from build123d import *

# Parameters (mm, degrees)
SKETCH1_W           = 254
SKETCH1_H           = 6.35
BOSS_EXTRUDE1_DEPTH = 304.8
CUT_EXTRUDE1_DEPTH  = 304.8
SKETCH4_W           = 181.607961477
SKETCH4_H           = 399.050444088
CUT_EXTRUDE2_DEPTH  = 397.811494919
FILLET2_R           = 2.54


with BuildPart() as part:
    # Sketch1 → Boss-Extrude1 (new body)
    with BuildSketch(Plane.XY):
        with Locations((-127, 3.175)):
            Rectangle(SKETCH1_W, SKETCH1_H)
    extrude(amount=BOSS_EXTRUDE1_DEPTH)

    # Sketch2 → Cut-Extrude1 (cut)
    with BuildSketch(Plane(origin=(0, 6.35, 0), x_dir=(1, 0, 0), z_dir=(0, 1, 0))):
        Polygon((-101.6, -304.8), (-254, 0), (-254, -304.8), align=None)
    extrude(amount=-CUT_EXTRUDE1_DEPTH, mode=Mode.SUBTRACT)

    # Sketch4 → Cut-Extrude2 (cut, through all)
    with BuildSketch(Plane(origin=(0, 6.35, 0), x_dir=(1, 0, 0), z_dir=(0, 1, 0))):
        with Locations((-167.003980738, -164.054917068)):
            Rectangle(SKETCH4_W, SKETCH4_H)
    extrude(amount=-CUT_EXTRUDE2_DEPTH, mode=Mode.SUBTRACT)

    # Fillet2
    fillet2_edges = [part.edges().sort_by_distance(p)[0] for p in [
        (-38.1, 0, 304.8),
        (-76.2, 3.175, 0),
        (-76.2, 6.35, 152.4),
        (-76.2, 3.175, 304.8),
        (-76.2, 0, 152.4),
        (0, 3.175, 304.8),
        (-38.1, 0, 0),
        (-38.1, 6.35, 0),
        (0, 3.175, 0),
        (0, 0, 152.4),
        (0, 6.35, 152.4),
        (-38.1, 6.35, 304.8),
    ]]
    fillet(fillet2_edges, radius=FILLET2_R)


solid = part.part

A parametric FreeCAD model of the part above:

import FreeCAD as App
import Part
import Sketcher
from FreeCAD import Vector
Q = App.Units.Quantity


def add_polygon(sketch, points):
    """Adds a closed chain of lines whose ends are joined by coincident constraints."""
    first, n = sketch.GeometryCount, len(points)
    for a, b in zip(points, points[1:] + points[:1]):
        sketch.addGeometry(Part.LineSegment(App.Vector(*a, 0), App.Vector(*b, 0)), False)
    for i in range(n):
        sketch.addConstraint(Sketcher.Constraint("Coincident", first + i, 2, first + (i + 1) % n, 1))

doc = App.newDocument("Part")
body = doc.addObject("PartDesign::Body", "Body")

# Sketch on XY plane
sketch1 = body.newObject("Sketcher::SketchObject", "Sketch")
sketch1.AttachmentSupport = (doc.getObject("XY_Plane"), [""])
sketch1.MapMode = "FlatFace"
add_polygon(sketch1, [(-254, 6), (-254, 0), (0, 0), (0, 6)])  # lines 0-3
sketch1.addConstraint([
    Sketcher.Constraint("Vertical", 0),
    Sketcher.Constraint("Horizontal", 1),
    Sketcher.Constraint("Vertical", 2),
    Sketcher.Constraint("Horizontal", 3),
    Sketcher.Constraint("Coincident", 1, 2, -1, 1),
    Sketcher.Constraint("DistanceX", 1, 1, 1, 2, Q("10 in")),
    Sketcher.Constraint("DistanceY", 0, 2, 0, 1, Q("0.25 in")),
])
pad1 = body.newObject("PartDesign::Pad", "Pad")
pad1.Profile = sketch1
pad1.Length = Q("12 in")

# Sketch on XZ plane
sketch2 = body.newObject("Sketcher::SketchObject", "Sketch001")
sketch2.AttachmentSupport = (doc.getObject("XZ_Plane"), [""])
sketch2.MapMode = "FlatFace"
sketch2.AttachmentOffset = App.Placement(Vector(0, 0, -0.25 * 25.4), App.Rotation())
add_polygon(sketch2, [(-102, 305), (-254, 0), (-254, 305)])  # lines 0-2
sketch2.addConstraint([
    Sketcher.Constraint("Vertical", 1),
    Sketcher.Constraint("Horizontal", 2),
    Sketcher.Constraint("PointOnObject", 0, 2, -1),
    Sketcher.Constraint("DistanceX", 2, 1, 2, 2, Q("6 in")),
    Sketcher.Constraint("DistanceY", 1, 1, 1, 2, Q("12 in")),
    Sketcher.Constraint("DistanceX", 0, 2, -1, 1, Q("10 in")),
])
pocket1 = body.newObject("PartDesign::Pocket", "Pocket")
pocket1.Profile = sketch2
pocket1.Length = Q("12 in")
pocket1.Reversed = True

# Sketch on XZ plane
sketch3 = body.newObject("Sketcher::SketchObject", "Sketch002")
sketch3.AttachmentSupport = (doc.getObject("XZ_Plane"), [""])
sketch3.MapMode = "FlatFace"
sketch3.AttachmentOffset = App.Placement(Vector(0, 0, -0.25 * 25.4), App.Rotation())
add_polygon(sketch3, [(-258, -35), (-258, 364), (-76, 364), (-76, -35)])  # lines 0-3
sketch3.addConstraint([
    Sketcher.Constraint("Vertical", 0),
    Sketcher.Constraint("Horizontal", 1),
    Sketcher.Constraint("Vertical", 2),
    Sketcher.Constraint("Horizontal", 3),
    Sketcher.Constraint("DistanceX", 1, 2, -1, 1, Q("3 in")),
    Sketcher.Constraint("DistanceX", 1, 1, 1, 2, Q("181.607961 mm")),
    Sketcher.Constraint("DistanceY", 0, 1, 0, 2, Q("399.050444 mm")),
    Sketcher.Constraint("DistanceY", -1, 1, 0, 2, Q("363.580139 mm")),
])
pocket2 = body.newObject("PartDesign::Pocket", "Pocket001")
pocket2.Profile = sketch3
pocket2.Type = "ThroughAll"
pocket2.Reversed = True
doc.recompute()

fillet = body.newObject("PartDesign::Fillet", "Fillet")
fillet.Base = (pocket2, ["Edge1"])
fillet.UseAllEdges = True
fillet.Radius = Q("0.1 in")

doc.recompute()
